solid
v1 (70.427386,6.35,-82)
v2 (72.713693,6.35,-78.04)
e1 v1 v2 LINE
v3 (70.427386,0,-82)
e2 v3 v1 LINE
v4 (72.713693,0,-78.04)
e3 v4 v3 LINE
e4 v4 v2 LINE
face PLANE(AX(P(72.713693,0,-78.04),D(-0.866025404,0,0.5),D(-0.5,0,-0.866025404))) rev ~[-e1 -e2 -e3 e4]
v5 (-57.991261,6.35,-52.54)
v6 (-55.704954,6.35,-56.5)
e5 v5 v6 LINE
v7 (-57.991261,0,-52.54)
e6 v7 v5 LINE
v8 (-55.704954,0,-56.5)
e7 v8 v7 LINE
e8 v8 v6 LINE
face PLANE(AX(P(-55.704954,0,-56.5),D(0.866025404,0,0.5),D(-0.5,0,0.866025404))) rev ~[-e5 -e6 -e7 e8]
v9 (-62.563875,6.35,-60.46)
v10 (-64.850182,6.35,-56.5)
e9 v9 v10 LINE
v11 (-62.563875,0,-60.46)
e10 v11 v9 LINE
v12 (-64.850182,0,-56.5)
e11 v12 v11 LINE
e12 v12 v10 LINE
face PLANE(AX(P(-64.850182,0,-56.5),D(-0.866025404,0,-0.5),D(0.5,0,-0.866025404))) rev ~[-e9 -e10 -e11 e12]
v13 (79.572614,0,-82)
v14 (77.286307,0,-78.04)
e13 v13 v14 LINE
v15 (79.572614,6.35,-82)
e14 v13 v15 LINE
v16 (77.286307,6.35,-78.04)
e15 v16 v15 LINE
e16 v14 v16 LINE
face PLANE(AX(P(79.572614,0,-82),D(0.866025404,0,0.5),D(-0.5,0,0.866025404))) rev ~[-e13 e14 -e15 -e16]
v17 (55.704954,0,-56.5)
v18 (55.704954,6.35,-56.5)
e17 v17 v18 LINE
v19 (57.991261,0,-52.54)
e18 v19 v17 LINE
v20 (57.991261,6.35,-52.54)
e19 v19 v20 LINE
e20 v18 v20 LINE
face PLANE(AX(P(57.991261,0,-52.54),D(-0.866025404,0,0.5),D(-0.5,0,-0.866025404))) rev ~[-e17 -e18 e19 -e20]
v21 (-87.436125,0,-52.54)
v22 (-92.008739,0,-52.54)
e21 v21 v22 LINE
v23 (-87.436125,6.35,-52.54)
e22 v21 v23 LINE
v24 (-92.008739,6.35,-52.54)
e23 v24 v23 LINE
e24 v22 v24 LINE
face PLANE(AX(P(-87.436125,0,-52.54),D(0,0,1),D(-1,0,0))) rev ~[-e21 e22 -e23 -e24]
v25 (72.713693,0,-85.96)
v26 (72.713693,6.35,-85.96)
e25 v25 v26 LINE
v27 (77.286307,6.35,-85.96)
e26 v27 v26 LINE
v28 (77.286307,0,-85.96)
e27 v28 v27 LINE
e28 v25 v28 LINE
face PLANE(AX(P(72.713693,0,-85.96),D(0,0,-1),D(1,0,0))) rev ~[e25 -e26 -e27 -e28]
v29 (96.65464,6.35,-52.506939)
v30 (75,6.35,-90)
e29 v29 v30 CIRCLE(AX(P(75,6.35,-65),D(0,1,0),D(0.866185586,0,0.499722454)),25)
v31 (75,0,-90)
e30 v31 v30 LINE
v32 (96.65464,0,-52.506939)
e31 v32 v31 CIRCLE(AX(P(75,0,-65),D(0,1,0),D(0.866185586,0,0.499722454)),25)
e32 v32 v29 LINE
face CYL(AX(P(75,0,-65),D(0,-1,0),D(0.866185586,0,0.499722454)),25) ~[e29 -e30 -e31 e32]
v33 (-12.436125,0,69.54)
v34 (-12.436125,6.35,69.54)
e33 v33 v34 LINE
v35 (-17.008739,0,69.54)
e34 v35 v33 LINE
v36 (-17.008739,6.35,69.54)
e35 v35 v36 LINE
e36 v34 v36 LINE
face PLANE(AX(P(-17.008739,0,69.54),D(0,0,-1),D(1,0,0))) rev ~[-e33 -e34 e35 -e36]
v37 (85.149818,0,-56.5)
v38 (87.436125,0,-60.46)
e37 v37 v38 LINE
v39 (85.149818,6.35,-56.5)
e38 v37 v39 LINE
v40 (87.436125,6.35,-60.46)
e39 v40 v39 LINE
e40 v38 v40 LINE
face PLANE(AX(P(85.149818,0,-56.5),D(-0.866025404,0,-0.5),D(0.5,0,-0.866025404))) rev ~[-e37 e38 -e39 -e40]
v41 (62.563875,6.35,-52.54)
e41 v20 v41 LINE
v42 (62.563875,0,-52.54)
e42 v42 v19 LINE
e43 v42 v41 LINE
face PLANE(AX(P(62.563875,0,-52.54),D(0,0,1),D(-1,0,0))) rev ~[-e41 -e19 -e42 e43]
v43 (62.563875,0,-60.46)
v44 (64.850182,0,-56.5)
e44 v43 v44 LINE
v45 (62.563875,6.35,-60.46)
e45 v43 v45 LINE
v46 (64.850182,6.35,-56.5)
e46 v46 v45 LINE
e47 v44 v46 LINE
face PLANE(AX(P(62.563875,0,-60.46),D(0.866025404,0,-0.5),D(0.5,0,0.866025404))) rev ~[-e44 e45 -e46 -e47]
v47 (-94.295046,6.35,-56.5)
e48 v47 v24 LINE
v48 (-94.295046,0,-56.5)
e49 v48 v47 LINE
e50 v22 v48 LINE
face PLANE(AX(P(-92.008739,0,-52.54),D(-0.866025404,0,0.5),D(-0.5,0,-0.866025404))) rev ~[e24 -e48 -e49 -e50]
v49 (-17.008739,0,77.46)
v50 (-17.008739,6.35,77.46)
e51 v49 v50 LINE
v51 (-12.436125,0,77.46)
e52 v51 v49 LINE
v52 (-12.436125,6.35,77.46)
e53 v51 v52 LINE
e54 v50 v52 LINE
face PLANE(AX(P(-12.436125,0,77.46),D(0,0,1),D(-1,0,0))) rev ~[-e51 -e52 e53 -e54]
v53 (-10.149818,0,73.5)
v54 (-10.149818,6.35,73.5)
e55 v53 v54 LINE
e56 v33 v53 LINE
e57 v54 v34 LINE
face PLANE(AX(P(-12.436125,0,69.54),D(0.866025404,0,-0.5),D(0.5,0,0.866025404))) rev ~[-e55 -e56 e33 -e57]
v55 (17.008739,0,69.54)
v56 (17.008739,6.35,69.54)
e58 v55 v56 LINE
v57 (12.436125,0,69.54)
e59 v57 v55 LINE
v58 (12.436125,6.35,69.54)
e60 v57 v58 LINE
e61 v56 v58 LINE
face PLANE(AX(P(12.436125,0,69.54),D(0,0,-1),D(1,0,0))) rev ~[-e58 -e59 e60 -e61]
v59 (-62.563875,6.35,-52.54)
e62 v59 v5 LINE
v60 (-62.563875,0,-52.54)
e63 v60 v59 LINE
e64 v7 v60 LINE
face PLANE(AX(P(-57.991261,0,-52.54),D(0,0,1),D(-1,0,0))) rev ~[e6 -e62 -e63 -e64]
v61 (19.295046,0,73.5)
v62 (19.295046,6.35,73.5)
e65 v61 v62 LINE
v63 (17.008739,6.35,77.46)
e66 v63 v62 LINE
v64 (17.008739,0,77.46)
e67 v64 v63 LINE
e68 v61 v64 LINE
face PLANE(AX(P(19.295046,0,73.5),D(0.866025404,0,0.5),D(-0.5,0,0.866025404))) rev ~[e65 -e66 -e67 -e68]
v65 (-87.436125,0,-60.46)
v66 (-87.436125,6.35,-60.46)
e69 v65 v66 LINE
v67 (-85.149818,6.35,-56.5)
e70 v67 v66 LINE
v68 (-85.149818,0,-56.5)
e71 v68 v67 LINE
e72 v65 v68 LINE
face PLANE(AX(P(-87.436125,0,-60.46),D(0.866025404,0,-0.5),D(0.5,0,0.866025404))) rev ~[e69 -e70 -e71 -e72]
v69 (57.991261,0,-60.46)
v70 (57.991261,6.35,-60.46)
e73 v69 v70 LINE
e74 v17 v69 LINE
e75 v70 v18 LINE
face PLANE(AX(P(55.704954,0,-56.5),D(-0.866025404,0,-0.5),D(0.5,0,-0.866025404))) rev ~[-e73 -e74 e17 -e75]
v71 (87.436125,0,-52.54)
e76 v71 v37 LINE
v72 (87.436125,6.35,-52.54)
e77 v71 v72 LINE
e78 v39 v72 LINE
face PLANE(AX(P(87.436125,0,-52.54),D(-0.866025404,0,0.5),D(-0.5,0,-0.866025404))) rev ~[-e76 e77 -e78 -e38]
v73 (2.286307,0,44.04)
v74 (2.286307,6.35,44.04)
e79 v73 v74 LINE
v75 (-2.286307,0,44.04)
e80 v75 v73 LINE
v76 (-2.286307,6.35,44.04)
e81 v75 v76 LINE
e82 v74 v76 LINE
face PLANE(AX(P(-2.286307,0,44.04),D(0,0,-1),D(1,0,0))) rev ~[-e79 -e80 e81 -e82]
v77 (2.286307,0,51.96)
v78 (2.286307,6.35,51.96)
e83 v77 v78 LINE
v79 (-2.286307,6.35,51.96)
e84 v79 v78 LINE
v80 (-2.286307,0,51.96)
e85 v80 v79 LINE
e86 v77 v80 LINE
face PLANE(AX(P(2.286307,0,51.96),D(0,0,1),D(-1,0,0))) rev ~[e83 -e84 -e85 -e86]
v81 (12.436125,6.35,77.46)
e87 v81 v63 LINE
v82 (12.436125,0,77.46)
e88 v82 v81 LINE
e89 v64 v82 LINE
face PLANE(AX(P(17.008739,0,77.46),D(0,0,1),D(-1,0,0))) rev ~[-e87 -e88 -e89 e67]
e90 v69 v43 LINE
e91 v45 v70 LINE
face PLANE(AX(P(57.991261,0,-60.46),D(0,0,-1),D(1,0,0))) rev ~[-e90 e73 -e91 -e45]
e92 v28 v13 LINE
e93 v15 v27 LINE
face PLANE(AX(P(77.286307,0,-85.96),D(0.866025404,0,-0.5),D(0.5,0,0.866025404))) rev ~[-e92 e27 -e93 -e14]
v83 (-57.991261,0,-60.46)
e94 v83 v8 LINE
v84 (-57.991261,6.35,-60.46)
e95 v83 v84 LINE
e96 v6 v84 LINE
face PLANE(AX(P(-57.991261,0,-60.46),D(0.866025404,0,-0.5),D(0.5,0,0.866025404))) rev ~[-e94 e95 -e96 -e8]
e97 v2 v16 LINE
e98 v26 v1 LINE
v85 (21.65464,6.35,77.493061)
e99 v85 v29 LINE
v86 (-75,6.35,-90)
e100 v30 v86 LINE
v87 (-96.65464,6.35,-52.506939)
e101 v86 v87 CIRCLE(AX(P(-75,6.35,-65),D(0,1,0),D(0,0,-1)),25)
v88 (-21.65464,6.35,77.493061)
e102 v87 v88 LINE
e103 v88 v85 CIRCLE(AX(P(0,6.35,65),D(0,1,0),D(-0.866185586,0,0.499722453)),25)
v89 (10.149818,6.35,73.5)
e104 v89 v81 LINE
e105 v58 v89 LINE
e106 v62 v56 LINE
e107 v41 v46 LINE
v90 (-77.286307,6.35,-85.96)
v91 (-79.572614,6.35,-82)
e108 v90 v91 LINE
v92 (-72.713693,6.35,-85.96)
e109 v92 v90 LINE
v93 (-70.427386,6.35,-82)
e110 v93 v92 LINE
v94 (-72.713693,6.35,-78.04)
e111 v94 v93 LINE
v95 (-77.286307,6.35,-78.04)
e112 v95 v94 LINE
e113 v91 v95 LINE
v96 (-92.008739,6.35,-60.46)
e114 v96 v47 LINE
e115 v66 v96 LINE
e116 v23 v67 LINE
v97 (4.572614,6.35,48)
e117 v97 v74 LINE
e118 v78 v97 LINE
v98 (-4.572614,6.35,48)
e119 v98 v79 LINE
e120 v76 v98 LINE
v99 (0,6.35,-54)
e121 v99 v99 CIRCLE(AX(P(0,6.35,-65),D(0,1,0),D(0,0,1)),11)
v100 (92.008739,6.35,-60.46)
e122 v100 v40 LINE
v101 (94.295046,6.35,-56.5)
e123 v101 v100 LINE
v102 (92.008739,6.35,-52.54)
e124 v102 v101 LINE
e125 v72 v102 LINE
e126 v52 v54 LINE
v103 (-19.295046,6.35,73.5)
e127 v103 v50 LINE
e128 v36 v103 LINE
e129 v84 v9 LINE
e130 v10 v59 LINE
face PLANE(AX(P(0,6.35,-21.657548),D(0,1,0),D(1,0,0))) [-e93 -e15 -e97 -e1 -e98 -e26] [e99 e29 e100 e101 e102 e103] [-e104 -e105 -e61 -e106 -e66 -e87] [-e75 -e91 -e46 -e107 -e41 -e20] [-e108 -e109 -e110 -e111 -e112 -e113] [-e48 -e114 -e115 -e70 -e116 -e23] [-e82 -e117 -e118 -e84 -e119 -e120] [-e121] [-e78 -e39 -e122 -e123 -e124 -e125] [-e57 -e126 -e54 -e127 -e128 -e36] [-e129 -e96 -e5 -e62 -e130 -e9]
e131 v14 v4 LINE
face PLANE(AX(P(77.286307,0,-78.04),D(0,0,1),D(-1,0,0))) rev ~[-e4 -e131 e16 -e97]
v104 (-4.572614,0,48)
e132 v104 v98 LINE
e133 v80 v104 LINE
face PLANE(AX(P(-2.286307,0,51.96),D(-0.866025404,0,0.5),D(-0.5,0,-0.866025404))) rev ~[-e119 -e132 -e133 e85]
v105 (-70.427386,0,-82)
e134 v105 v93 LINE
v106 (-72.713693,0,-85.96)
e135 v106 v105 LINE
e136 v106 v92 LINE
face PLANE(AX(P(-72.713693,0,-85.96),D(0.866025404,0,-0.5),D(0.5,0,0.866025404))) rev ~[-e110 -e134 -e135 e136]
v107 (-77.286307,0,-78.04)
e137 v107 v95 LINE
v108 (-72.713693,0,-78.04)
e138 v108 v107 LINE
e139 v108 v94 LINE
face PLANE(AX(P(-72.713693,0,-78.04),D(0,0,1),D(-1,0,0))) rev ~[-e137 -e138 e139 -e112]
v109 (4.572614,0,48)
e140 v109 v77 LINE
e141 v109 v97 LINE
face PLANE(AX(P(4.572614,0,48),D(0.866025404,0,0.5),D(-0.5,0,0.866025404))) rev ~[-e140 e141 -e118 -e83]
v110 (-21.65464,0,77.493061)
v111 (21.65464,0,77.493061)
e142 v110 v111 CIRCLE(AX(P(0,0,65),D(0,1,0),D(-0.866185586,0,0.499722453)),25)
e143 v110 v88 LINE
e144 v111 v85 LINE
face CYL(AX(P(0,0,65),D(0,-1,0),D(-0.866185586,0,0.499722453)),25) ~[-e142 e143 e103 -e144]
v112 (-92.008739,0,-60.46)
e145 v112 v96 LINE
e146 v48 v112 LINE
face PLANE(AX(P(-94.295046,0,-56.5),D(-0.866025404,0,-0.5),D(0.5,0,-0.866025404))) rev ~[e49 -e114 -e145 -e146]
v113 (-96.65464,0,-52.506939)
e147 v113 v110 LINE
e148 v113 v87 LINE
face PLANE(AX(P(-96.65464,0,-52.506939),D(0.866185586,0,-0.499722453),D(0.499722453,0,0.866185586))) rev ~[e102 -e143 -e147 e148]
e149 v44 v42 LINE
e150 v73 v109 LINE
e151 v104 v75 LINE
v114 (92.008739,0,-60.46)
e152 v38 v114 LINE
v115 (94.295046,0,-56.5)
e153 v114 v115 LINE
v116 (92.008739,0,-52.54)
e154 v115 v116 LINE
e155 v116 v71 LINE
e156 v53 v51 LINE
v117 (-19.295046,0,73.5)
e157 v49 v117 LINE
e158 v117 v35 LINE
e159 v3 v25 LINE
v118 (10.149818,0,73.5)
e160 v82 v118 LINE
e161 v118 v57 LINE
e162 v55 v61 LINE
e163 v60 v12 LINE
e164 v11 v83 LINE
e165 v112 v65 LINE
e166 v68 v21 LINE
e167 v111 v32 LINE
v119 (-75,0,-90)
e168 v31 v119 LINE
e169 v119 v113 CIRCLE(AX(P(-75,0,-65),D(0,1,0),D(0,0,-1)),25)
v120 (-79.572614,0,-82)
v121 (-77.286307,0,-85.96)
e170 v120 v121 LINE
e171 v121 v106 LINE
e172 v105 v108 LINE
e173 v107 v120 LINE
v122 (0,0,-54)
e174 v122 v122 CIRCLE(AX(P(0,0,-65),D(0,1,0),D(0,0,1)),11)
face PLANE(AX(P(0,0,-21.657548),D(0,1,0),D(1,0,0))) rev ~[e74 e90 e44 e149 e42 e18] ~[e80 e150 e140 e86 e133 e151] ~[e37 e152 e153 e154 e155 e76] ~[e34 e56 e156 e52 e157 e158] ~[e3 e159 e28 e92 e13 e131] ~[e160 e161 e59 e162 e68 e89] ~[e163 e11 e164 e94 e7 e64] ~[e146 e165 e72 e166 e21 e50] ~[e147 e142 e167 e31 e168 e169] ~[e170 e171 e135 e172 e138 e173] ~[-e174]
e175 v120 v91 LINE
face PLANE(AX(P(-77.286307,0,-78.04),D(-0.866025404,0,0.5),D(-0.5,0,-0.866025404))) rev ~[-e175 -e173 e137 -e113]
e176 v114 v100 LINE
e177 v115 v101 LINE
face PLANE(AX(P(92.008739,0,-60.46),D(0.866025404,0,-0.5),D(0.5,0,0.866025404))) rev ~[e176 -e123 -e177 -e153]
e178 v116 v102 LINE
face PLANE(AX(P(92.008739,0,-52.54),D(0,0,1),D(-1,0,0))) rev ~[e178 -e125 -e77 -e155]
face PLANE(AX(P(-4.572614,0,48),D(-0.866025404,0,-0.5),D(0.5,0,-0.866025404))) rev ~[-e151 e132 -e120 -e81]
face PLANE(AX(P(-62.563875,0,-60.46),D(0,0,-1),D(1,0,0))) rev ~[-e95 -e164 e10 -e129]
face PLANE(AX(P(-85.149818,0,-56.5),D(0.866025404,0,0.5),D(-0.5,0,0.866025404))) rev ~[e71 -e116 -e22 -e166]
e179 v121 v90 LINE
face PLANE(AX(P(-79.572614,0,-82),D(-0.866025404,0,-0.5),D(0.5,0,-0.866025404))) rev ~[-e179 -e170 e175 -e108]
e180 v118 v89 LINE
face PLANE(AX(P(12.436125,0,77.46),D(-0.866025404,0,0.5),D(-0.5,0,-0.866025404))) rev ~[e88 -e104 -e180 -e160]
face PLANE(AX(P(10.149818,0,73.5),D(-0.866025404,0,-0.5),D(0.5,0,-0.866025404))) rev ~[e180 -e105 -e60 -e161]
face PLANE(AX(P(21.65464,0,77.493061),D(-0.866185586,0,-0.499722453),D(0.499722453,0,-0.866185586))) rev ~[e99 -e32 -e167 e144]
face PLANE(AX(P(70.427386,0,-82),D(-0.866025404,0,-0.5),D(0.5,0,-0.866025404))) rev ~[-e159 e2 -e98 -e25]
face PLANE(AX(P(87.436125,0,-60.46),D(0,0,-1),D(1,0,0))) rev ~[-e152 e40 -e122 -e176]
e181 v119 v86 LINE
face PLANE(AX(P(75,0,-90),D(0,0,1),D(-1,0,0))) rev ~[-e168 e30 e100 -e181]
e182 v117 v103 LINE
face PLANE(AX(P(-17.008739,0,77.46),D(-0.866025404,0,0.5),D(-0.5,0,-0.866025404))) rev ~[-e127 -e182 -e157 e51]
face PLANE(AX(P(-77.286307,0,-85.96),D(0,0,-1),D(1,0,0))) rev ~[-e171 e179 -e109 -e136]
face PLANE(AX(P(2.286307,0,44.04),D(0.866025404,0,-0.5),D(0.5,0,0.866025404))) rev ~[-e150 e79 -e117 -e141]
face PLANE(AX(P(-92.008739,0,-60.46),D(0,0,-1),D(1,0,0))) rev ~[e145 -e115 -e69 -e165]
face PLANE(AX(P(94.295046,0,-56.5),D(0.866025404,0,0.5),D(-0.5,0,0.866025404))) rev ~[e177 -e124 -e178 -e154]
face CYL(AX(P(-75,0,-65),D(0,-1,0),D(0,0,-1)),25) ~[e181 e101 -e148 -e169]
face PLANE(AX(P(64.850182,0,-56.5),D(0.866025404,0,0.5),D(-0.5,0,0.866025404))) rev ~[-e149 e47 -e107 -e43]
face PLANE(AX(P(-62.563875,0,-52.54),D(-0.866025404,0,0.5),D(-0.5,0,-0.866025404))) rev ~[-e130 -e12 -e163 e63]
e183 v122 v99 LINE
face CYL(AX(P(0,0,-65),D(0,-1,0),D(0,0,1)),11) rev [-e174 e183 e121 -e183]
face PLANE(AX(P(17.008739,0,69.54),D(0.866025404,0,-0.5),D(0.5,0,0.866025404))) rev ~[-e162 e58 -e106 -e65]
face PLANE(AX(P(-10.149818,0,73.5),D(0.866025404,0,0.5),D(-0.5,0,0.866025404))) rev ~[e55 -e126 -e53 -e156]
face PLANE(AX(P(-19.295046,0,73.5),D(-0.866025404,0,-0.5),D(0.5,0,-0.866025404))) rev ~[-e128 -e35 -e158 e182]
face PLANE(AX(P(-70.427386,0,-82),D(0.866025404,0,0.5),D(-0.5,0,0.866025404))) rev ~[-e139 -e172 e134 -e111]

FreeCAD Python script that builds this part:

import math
import FreeCAD as App
import Part
import Sketcher
Q = App.Units.Quantity


def add_polygon(sketch, points):
    """Adds a closed chain of lines whose ends are joined by coincident constraints."""
    first, n = sketch.GeometryCount, len(points)
    for a, b in zip(points, points[1:] + points[:1]):
        sketch.addGeometry(Part.LineSegment(App.Vector(*a, 0), App.Vector(*b, 0)), False)
    for i in range(n):
        sketch.addConstraint(Sketcher.Constraint("Coincident", first + i, 2, first + (i + 1) % n, 1))

doc = App.newDocument("Part")
body = doc.addObject("PartDesign::Body", "Body")

# Sketch on XZ plane
sketch1 = doc.addObject("Sketcher::SketchObject", "Sketch")
body.addObject(sketch1)
sketch1.AttachmentSupport = (doc.XZ_Plane, [""])
sketch1.MapMode = "FlatFace"
sketch1.addGeometry([
    Part.LineSegment(App.Vector(-97, -53, 0), App.Vector(-22, 77, 0)),  # 0
    Part.ArcOfCircle(Part.Circle(App.Vector(0, 65, 0), App.Vector(0, 0, 1), 25), math.radians(30), math.radians(150)),  # 1
    Part.LineSegment(App.Vector(22, 77, 0), App.Vector(97, -53, 0)),  # 2
    Part.ArcOfCircle(Part.Circle(App.Vector(75, -65, 0), App.Vector(0, 0, 1), 25), math.radians(-90), math.radians(30)),  # 3
    Part.LineSegment(App.Vector(75, -90, 0), App.Vector(-75, -90, 0)),  # 4
    Part.ArcOfCircle(Part.Circle(App.Vector(-75, -65, 0), App.Vector(0, 0, 1), 25), math.radians(150), math.radians(270)),  # 5
    Part.Circle(App.Vector(0, -65, 0), App.Vector(0, 0, 1), 11),  # 6
], False)
sketch1.addConstraint([
    Sketcher.Constraint("Tangent", 0, 2, 1, 2),
    Sketcher.Constraint("Tangent", 1, 1, 2, 1),
    Sketcher.Constraint("Tangent", 2, 2, 3, 2),
    Sketcher.Constraint("Tangent", 3, 1, 4, 1),
    Sketcher.Constraint("Tangent", 4, 2, 5, 2),
    Sketcher.Constraint("Tangent", 5, 1, 0, 1),
    Sketcher.Constraint("Horizontal", 4),
    Sketcher.Constraint("Equal", 1, 3),
    Sketcher.Constraint("Equal", 3, 5),
    Sketcher.Constraint("Symmetric", 1, 3, 6, 3, -1, 1),
    Sketcher.Constraint("Symmetric", 0, 2, 1, 1, -2),
    Sketcher.Constraint("Horizontal", 5, 3, 6, 3),
    Sketcher.Constraint("Diameter", 6, 22.0),
    Sketcher.Constraint("Radius", 1, 25.0),
    Sketcher.Constraint("DistanceX", 4, 2, 4, 1, 150.0),
    Sketcher.Constraint("DistanceY", -1, 1, 1, 3, 65.0),
])
pad1 = doc.addObject("PartDesign::Pad", "Pad")
body.addObject(pad1)
pad1.Profile = sketch1
pad1.Length = 6.35
pad1.Reversed = True

# Sketch on XZ plane
sketch2 = doc.addObject("Sketcher::SketchObject", "Sketch001")
body.addObject(sketch2)
sketch2.AttachmentSupport = (doc.XZ_Plane, [""])
sketch2.MapMode = "FlatFace"
add_polygon(sketch2, [(-79.6, -82), (-77.3, -86), (-72.7, -86), (-70.4, -82), (-72.7, -78), (-77.3, -78)])  # lines 0-5
add_polygon(sketch2, [(-94.3, -56.5), (-92, -60.5), (-87.4, -60.5), (-85.1, -56.5), (-87.4, -52.5), (-92, -52.5)])  # lines 6-11
add_polygon(sketch2, [(-64.9, -56.5), (-62.6, -60.5), (-58, -60.5), (-55.7, -56.5), (-58, -52.5), (-62.6, -52.5)])  # lines 12-17
add_polygon(sketch2, [(55.7, -56.5), (58, -60.5), (62.6, -60.5), (64.9, -56.5), (62.6, -52.5), (58, -52.5)])  # lines 18-23
add_polygon(sketch2, [(70.4, -82), (72.7, -86), (77.3, -86), (79.6, -82), (77.3, -78), (72.7, -78)])  # lines 24-29
add_polygon(sketch2, [(85.1, -56.5), (87.4, -60.5), (92, -60.5), (94.3, -56.5), (92, -52.5), (87.4, -52.5)])  # lines 30-35
add_polygon(sketch2, [(-4.6, 48), (-2.3, 44), (2.3, 44), (4.6, 48), (2.3, 52), (-2.3, 52)])  # lines 36-41
add_polygon(sketch2, [(-19.3, 73.5), (-17, 69.5), (-12.4, 69.5), (-10.1, 73.5), (-12.4, 77.5), (-17, 77.5)])  # lines 42-47
add_polygon(sketch2, [(10.1, 73.5), (12.4, 69.5), (17, 69.5), (19.3, 73.5), (17, 77.5), (12.4, 77.5)])  # lines 48-53
sketch2.addConstraint([
    Sketcher.Constraint("Horizontal", 1),
    Sketcher.Constraint("Horizontal", 4),
    Sketcher.Constraint("Horizontal", 7),
    Sketcher.Constraint("Horizontal", 10),
    Sketcher.Constraint("Horizontal", 13),
    Sketcher.Constraint("Horizontal", 16),
    Sketcher.Constraint("Horizontal", 19),
    Sketcher.Constraint("Horizontal", 22),
    Sketcher.Constraint("Horizontal", 25),
    Sketcher.Constraint("Horizontal", 28),
    Sketcher.Constraint("Horizontal", 31),
    Sketcher.Constraint("Horizontal", 34),
    Sketcher.Constraint("Horizontal", 37),
    Sketcher.Constraint("Horizontal", 40),
    Sketcher.Constraint("Horizontal", 43),
    Sketcher.Constraint("Horizontal", 46),
    Sketcher.Constraint("Horizontal", 49),
    Sketcher.Constraint("Horizontal", 52),
    Sketcher.Constraint("Symmetric", 13, 2, 18, 2, -2),
    Sketcher.Constraint("Symmetric", 17, 2, 20, 2, -2),
    Sketcher.Constraint("Symmetric", 16, 2, 21, 2, -2),
    Sketcher.Constraint("Symmetric", 14, 2, 23, 2, -2),
    Sketcher.Constraint("Symmetric", 1, 2, 24, 2, -2),
    Sketcher.Constraint("Symmetric", 5, 2, 26, 2, -2),
    Sketcher.Constraint("Symmetric", 4, 2, 27, 2, -2),
    Sketcher.Constraint("Symmetric", 2, 2, 29, 2, -2),
    Sketcher.Constraint("Symmetric", 7, 2, 30, 2, -2),
    Sketcher.Constraint("Symmetric", 11, 2, 32, 2, -2),
    Sketcher.Constraint("Symmetric", 10, 2, 33, 2, -2),
    Sketcher.Constraint("Symmetric", 8, 2, 35, 2, -2),
    Sketcher.Constraint("Symmetric", 38, 2, 41, 2, -2),
    Sketcher.Constraint("Symmetric", 43, 2, 48, 2, -2),
    Sketcher.Constraint("Symmetric", 47, 2, 50, 2, -2),
    Sketcher.Constraint("Symmetric", 46, 2, 51, 2, -2),
    Sketcher.Constraint("Symmetric", 44, 2, 53, 2, -2),
    Sketcher.Constraint("Parallel", 0, 3),
    Sketcher.Constraint("Parallel", 2, 5),
    Sketcher.Constraint("Parallel", 3, 6),
    Sketcher.Constraint("Parallel", 5, 8),
    Sketcher.Constraint("Parallel", 6, 9),
    Sketcher.Constraint("Parallel", 8, 11),
    Sketcher.Constraint("Parallel", 9, 12),
    Sketcher.Constraint("Parallel", 11, 14),
    Sketcher.Constraint("Parallel", 12, 15),
    Sketcher.Constraint("Parallel", 14, 17),
    Sketcher.Constraint("Parallel", 15, 18),
    Sketcher.Constraint("Parallel", 17, 20),
    Sketcher.Constraint("Parallel", 20, 23),
    Sketcher.Constraint("Parallel", 23, 26),
    Sketcher.Constraint("Parallel", 26, 29),
    Sketcher.Constraint("Parallel", 29, 32),
    Sketcher.Constraint("Parallel", 32, 35),
    Sketcher.Constraint("Parallel", 33, 36),
    Sketcher.Constraint("Parallel", 35, 38),
    Sketcher.Constraint("Parallel", 36, 39),
    Sketcher.Constraint("Parallel", 38, 41),
    Sketcher.Constraint("Parallel", 39, 42),
    Sketcher.Constraint("Parallel", 41, 44),
    Sketcher.Constraint("Parallel", 42, 45),
    Sketcher.Constraint("Parallel", 44, 47),
    Sketcher.Constraint("Parallel", 47, 50),
    Sketcher.Constraint("Parallel", 50, 53),
    Sketcher.Constraint("Horizontal", 2, 2, 5, 2),
    Sketcher.Constraint("Horizontal", 8, 2, 11, 2),
    Sketcher.Constraint("Horizontal", 7, 2, 12, 2),
    Sketcher.Constraint("Horizontal", 11, 2, 14, 2),
    Sketcher.Constraint("Horizontal", 10, 2, 15, 2),
    Sketcher.Constraint("Horizontal", 14, 2, 17, 2),
    Sketcher.Constraint("Horizontal", 44, 2, 47, 2),
    Sketcher.Constraint("Vertical", 1, 2, 3, 2),
    Sketcher.Constraint("Vertical", 7, 2, 9, 2),
    Sketcher.Constraint("Vertical", 37, 2, 39, 2),
    Sketcher.Constraint("Vertical", 43, 2, 45, 2),
    Sketcher.Constraint("Equal", 4, 7),
    Sketcher.Constraint("Equal", 10, 13),
    Sketcher.Constraint("Equal", 34, 37),
    Sketcher.Constraint("Equal", 40, 43),
    Sketcher.Constraint("Equal", 5, 6),
    Sketcher.Constraint("Equal", 35, 36),
    Sketcher.Constraint("Equal", 41, 42),
    Sketcher.Constraint("Angle", 0, Q("-60 deg")),
    Sketcher.Constraint("DistanceY", 2, 2, -1, 1, 82.0),
    Sketcher.Constraint("DistanceY", -1, 1, 38, 2, 48.0),
    Sketcher.Constraint("DistanceY", 8, 2, -1, 1, 56.5),
    Sketcher.Constraint("DistanceY", -1, 1, 44, 2, 73.5),
    Sketcher.Constraint("DistanceY", 0, 2, -1, 1, 85.96),
    Sketcher.Constraint("DistanceX", 1, 1, 1, 2, 4.572614),
    Sketcher.Constraint("DistanceX", 6, 2, -1, 1, 92.008739),
    Sketcher.Constraint("DistanceX", 13, 2, -1, 1, 57.991261),
    Sketcher.Constraint("DistanceX", 42, 2, -1, 1, 17.008739),
    Sketcher.Constraint("DistanceX", 6, 2, 4, 2, 14.722432),
])
pocket1 = doc.addObject("PartDesign::Pocket", "Pocket")
body.addObject(pocket1)
pocket1.Profile = sketch2
pocket1.Type = "ThroughAll"

doc.recompute()
